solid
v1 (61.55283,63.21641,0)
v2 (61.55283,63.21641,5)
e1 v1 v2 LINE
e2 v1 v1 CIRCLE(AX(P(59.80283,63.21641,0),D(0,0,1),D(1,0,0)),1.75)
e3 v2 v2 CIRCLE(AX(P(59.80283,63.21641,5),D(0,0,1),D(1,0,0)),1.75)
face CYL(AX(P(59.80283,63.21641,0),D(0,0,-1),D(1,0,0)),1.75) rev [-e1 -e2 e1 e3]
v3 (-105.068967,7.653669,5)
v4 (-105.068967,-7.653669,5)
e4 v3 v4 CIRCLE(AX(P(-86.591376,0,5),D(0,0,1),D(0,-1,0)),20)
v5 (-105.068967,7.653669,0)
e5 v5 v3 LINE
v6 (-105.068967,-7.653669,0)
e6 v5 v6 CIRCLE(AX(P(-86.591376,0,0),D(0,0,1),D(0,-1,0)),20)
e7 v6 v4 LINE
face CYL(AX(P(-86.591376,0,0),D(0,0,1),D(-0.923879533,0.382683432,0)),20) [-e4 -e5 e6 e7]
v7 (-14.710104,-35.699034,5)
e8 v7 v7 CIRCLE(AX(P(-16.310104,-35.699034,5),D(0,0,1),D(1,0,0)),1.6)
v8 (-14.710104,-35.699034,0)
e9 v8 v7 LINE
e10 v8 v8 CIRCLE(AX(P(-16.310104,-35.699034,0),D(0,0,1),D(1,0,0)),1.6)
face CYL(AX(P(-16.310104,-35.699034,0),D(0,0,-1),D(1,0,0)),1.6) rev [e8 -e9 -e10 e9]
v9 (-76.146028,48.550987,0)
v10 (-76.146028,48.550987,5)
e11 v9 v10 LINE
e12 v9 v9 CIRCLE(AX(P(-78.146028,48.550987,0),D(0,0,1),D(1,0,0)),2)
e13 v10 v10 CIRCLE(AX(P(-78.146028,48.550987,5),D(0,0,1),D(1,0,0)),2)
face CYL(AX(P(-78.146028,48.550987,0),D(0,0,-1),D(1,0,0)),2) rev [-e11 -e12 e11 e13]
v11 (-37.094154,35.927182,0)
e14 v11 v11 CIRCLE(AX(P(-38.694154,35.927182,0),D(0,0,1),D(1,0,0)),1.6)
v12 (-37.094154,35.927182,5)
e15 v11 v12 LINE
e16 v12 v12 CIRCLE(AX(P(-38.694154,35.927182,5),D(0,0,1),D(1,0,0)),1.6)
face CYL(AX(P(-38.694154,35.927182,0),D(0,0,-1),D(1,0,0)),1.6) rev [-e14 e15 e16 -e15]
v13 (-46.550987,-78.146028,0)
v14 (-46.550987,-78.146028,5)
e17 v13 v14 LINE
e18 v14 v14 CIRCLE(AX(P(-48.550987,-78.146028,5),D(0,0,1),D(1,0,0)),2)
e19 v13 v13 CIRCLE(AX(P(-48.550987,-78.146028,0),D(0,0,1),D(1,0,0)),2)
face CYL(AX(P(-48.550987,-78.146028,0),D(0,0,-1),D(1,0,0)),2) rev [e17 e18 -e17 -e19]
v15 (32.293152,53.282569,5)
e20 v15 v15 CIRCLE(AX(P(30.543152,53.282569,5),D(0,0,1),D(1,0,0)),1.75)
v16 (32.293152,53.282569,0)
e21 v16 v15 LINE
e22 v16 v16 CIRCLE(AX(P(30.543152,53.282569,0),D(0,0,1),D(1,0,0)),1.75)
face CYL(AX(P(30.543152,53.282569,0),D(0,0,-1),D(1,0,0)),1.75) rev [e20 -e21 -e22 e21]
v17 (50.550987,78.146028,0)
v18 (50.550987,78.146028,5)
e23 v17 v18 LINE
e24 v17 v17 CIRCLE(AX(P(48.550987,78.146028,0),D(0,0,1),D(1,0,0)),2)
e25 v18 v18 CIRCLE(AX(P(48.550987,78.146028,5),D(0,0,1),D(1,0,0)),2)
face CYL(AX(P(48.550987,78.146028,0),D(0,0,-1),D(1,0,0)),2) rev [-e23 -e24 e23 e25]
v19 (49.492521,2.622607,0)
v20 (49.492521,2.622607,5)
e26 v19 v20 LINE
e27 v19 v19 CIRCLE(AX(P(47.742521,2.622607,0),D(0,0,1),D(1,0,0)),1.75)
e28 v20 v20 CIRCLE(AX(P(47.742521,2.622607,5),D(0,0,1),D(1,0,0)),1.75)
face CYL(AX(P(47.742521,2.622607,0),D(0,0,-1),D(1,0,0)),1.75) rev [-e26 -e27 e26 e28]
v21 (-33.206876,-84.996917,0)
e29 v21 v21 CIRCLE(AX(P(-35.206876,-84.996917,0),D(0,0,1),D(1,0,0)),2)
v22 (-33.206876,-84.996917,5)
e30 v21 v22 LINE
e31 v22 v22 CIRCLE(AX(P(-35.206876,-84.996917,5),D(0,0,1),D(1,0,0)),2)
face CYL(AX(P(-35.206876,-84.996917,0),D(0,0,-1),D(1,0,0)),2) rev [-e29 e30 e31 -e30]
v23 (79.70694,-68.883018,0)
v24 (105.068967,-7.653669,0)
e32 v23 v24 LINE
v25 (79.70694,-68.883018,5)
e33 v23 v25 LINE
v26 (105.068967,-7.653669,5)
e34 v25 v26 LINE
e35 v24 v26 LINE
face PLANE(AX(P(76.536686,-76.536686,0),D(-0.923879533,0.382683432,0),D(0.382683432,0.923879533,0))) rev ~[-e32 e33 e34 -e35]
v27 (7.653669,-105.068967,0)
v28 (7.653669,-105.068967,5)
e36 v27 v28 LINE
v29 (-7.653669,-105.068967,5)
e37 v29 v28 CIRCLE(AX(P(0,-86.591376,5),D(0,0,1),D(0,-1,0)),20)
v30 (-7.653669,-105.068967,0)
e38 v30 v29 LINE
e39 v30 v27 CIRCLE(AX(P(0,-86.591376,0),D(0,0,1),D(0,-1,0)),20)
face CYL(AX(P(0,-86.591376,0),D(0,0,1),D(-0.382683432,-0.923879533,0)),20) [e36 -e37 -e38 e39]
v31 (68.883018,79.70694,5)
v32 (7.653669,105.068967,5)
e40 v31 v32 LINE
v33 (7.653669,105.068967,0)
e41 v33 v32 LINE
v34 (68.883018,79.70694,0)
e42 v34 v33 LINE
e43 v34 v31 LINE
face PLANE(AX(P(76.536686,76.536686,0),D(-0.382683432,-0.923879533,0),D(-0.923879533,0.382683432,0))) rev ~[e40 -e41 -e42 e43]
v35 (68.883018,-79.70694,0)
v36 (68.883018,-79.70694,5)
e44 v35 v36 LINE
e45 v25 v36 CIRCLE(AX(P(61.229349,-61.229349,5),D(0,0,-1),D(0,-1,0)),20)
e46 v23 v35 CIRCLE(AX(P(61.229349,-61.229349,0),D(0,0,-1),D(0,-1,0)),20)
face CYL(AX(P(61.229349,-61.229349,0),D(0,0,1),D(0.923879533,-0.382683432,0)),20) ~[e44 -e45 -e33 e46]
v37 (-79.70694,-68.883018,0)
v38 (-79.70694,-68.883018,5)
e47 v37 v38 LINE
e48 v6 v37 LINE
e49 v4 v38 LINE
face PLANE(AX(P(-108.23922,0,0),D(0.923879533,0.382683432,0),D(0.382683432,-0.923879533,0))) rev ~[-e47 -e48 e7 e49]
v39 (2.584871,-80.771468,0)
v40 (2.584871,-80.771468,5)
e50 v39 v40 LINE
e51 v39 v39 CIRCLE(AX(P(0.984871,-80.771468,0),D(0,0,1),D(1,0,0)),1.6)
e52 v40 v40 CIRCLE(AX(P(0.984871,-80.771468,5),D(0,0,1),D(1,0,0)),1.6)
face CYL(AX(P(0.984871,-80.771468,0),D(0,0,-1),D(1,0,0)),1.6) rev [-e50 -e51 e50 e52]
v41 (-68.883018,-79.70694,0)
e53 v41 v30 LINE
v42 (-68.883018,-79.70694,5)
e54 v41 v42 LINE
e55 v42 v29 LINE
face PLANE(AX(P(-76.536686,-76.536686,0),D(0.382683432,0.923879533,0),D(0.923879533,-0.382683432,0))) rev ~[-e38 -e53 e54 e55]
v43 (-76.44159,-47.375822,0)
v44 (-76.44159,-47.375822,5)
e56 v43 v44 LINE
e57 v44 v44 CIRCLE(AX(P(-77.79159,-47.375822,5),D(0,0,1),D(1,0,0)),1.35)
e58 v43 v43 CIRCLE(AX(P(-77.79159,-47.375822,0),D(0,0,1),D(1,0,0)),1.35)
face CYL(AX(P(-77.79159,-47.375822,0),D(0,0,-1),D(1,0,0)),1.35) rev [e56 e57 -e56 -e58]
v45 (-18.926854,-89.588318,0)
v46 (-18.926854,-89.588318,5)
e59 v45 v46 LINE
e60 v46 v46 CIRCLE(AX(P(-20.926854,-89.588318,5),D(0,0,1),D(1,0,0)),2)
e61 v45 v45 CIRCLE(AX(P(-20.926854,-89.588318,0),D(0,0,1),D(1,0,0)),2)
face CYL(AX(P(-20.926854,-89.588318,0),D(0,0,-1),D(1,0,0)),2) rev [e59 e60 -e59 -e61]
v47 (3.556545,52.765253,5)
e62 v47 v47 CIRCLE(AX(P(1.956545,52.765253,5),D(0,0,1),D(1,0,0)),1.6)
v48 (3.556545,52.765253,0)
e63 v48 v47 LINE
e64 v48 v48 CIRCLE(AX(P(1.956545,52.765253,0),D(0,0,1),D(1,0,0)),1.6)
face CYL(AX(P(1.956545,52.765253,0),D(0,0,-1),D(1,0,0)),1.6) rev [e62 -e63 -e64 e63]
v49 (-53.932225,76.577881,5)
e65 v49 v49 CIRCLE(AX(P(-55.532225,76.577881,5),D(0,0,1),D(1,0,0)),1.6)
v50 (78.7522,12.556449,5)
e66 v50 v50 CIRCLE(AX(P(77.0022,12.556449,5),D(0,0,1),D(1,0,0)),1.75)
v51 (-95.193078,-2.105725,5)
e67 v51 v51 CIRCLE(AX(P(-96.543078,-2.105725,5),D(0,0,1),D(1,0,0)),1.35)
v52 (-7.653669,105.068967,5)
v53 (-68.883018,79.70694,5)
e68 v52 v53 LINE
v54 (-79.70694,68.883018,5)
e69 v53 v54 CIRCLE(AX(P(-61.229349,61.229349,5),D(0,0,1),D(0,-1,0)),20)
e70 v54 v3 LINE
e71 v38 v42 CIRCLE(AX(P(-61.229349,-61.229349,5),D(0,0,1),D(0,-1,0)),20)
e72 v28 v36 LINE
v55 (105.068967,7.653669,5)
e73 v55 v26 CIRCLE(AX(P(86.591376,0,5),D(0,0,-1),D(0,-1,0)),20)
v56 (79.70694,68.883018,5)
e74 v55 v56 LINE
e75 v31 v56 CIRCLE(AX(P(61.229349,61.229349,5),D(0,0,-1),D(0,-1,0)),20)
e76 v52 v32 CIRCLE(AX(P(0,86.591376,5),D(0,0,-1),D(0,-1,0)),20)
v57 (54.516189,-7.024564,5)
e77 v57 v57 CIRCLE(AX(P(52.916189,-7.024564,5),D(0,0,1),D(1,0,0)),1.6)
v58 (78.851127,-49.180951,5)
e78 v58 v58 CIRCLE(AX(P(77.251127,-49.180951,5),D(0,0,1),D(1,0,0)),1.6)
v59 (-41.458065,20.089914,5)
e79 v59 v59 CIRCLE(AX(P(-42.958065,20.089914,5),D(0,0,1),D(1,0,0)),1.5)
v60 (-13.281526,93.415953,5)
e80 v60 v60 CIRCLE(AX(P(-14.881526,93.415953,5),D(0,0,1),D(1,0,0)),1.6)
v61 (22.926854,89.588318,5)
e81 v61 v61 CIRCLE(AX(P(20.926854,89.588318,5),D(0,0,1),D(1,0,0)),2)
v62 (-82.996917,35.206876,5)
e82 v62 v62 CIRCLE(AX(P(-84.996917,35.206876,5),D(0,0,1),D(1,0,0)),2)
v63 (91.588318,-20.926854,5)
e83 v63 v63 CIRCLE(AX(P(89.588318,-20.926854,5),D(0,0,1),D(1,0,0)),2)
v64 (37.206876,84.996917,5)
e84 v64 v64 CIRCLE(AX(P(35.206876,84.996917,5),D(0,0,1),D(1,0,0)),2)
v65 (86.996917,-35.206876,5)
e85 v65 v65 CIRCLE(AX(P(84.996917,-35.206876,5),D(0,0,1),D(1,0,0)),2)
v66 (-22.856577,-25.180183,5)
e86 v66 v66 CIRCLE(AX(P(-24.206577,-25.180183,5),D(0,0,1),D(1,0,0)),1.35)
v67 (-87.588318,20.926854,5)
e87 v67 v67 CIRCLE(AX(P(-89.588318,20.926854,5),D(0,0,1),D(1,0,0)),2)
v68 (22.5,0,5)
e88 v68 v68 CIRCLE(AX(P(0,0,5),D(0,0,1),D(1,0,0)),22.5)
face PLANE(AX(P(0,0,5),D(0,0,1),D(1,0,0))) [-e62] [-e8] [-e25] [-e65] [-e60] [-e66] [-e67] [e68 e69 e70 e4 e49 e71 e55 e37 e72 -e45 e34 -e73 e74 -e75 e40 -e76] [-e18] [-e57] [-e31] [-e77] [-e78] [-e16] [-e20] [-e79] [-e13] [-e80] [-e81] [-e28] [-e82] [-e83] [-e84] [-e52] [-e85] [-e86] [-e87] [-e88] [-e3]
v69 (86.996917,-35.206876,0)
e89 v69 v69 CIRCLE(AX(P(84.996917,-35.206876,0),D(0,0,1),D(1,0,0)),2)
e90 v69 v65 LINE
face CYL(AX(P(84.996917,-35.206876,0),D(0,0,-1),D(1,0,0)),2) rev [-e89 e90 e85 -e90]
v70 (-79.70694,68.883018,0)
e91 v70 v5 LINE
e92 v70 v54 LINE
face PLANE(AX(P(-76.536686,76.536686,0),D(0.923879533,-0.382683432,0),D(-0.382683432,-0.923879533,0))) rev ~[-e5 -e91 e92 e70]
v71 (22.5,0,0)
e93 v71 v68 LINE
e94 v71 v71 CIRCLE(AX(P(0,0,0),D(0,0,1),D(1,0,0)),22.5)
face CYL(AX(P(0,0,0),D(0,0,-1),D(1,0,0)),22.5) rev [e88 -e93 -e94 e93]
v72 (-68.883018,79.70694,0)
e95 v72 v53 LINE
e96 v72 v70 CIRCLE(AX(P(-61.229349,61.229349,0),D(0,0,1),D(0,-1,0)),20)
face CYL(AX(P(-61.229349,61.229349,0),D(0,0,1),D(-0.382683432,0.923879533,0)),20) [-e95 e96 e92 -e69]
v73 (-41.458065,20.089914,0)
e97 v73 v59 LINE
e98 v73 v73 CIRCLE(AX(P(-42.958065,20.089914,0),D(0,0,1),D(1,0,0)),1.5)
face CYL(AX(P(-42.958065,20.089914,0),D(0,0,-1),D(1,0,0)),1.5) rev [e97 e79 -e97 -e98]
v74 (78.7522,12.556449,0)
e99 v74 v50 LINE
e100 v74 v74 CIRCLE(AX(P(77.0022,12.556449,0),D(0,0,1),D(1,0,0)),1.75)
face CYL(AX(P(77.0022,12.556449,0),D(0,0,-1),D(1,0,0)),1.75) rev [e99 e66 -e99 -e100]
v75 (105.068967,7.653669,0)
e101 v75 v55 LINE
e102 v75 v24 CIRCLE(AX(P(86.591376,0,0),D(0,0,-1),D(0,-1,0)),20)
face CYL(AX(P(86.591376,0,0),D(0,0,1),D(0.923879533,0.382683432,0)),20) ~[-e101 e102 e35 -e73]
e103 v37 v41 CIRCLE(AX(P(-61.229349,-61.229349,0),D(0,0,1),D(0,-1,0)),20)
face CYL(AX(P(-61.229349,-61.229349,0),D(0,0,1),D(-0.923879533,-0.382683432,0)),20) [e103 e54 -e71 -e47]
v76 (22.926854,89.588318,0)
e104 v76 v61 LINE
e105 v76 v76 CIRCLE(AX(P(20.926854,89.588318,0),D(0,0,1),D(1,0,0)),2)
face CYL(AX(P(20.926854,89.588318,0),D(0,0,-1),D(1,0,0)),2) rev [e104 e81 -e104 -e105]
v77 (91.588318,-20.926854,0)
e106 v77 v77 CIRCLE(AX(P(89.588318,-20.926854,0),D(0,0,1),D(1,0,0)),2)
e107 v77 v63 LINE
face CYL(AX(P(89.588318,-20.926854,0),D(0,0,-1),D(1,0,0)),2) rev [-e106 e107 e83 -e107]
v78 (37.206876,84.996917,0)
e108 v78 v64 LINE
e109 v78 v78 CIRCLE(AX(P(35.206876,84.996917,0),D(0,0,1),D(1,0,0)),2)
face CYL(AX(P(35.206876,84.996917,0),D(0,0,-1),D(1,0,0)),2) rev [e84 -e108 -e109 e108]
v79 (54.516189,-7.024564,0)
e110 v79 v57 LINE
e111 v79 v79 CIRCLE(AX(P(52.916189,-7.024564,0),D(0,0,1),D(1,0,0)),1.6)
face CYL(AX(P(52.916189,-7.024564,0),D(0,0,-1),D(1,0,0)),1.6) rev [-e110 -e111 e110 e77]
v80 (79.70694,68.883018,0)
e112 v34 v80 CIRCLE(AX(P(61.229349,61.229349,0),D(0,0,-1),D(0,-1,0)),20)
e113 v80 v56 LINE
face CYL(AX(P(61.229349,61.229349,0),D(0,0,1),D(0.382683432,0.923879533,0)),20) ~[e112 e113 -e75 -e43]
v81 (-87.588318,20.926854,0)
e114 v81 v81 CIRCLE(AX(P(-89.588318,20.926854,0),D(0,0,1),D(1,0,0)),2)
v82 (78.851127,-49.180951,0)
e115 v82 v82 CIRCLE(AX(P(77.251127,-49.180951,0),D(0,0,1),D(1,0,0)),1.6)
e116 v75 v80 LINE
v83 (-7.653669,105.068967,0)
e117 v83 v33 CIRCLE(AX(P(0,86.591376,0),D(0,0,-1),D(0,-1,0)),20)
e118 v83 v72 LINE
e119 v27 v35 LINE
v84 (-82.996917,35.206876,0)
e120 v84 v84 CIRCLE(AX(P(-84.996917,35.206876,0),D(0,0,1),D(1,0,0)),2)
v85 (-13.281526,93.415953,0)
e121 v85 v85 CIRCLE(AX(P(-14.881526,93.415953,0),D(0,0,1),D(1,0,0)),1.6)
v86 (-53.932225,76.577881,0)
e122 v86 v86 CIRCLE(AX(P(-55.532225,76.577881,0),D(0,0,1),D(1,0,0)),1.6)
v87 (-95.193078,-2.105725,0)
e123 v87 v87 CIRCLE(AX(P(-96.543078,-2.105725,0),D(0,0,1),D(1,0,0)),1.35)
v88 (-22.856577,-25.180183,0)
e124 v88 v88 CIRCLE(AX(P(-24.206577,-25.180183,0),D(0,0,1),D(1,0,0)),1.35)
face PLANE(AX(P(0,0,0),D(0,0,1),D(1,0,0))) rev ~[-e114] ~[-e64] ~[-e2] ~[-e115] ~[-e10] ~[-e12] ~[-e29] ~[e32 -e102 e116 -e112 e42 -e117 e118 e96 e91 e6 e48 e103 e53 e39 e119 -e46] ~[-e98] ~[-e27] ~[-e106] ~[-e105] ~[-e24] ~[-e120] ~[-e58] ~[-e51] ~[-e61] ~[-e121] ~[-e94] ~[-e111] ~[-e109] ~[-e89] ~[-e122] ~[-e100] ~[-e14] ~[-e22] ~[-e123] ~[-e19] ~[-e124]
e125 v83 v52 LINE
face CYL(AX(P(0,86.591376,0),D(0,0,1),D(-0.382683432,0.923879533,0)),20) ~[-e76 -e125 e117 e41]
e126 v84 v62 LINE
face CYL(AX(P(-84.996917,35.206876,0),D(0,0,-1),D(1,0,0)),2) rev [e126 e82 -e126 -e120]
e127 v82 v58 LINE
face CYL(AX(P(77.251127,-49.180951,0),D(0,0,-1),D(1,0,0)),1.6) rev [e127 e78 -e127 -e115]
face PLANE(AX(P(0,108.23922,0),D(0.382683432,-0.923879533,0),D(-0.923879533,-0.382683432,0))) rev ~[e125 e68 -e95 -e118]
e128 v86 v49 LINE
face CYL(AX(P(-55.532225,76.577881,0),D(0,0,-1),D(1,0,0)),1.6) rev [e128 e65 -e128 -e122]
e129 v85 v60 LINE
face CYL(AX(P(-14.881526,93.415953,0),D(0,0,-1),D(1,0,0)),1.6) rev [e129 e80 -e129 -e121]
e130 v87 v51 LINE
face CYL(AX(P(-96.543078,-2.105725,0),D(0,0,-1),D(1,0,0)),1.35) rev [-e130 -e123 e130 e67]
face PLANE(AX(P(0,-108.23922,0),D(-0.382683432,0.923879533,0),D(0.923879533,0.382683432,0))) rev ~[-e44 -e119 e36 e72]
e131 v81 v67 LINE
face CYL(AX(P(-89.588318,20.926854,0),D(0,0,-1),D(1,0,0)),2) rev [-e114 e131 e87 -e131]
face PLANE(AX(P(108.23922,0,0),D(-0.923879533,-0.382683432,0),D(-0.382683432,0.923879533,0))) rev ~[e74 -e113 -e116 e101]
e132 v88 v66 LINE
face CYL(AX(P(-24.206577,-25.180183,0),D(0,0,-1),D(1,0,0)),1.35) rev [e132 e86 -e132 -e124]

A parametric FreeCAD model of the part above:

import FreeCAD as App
import Part
import Sketcher

V = App.Vector
Q = App.Units.Quantity


def edges_at(feature, points):
    """Names of the edges that pass closest to the given points."""
    edges = feature.Shape.Edges
    near = lambda p: min(range(len(edges)), key=lambda i: edges[i].distToShape(Part.Vertex(*p))[0])
    return sorted({f"Edge{near(p) + 1}" for p in points})

doc = App.newDocument("Part")
body = doc.addObject("PartDesign::Body", "Body")

# Sketch on XY plane
sketch1 = body.newObject("Sketcher::SketchObject", "Sketch")
sketch1.AttachmentSupport = (doc.getObject("XY_Plane"), [""])
sketch1.MapMode = "FlatFace"
sketch1.addGeometry([
    Part.LineSegment(V(0, 108.2, 0), V(-76.5, 76.5, 0)),  # 0
    Part.LineSegment(V(-76.5, 76.5, 0), V(-108.2, 0, 0)),  # 1
    Part.LineSegment(V(-108.2, 0, 0), V(-76.5, -76.5, 0)),  # 2
    Part.LineSegment(V(-76.5, -76.5, 0), V(0, -108.2, 0)),  # 3
    Part.LineSegment(V(0, -108.2, 0), V(76.5, -76.5, 0)),  # 4
    Part.LineSegment(V(76.5, -76.5, 0), V(108.2, 0, 0)),  # 5
    Part.LineSegment(V(108.2, 0, 0), V(76.5, 76.5, 0)),  # 6
    Part.LineSegment(V(76.5, 76.5, 0), V(0, 108.2, 0)),  # 7
    Part.Circle(V(-77.8, -47.4, 0), V(0, 0, 1), 1.4),  # 8
    Part.Circle(V(-35.2, -85, 0), V(0, 0, 1), 2),  # 9
    Part.Circle(V(-48.6, -78.1, 0), V(0, 0, 1), 2),  # 10
    Part.Circle(V(-20.9, -89.6, 0), V(0, 0, 1), 2),  # 11
    Part.Circle(V(-96.5, -2.1, 0), V(0, 0, 1), 1.4),  # 12
    Part.Circle(V(-16.3, -35.7, 0), V(0, 0, 1), 1.6),  # 13
    Part.Circle(V(-24.2, -25.2, 0), V(0, 0, 1), 1.4),  # 14
    Part.Circle(V(1, -80.8, 0), V(0, 0, 1), 1.6),  # 15
    Part.Circle(V(77.3, -49.2, 0), V(0, 0, 1), 1.6),  # 16
    Part.Circle(V(0, 0, 0), V(0, 0, 1), 22.5),  # 17
    Part.Circle(V(85, -35.2, 0), V(0, 0, 1), 2),  # 18
    Part.Circle(V(52.9, -7, 0), V(0, 0, 1), 1.6),  # 19
    Part.Circle(V(89.6, -20.9, 0), V(0, 0, 1), 2),  # 20
    Part.Circle(V(-89.6, 20.9, 0), V(0, 0, 1), 2),  # 21
    Part.Circle(V(-85, 35.2, 0), V(0, 0, 1), 2),  # 22
    Part.Circle(V(-43, 20.1, 0), V(0, 0, 1), 1.5),  # 23
    Part.Circle(V(-38.7, 35.9, 0), V(0, 0, 1), 1.6),  # 24
    Part.Circle(V(-78.1, 48.6, 0), V(0, 0, 1), 2),  # 25
    Part.Circle(V(-55.5, 76.6, 0), V(0, 0, 1), 1.6),  # 26
    Part.Circle(V(-14.9, 93.4, 0), V(0, 0, 1), 1.6),  # 27
    Part.Circle(V(47.7, 2.6, 0), V(0, 0, 1), 1.8),  # 28
    Part.Circle(V(77, 12.6, 0), V(0, 0, 1), 1.8),  # 29
    Part.Circle(V(2, 52.8, 0), V(0, 0, 1), 1.6),  # 30
    Part.Circle(V(30.5, 53.3, 0), V(0, 0, 1), 1.8),  # 31
    Part.Circle(V(20.9, 89.6, 0), V(0, 0, 1), 2),  # 32
    Part.Circle(V(35.2, 85, 0), V(0, 0, 1), 2),  # 33
    Part.Circle(V(59.8, 63.2, 0), V(0, 0, 1), 1.8),  # 34
    Part.Circle(V(48.6, 78.1, 0), V(0, 0, 1), 2),  # 35
], False)
sketch1.addConstraint([
    Sketcher.Constraint("Coincident", 0, 2, 1, 1),
    Sketcher.Constraint("Coincident", 1, 2, 2, 1),
    Sketcher.Constraint("Coincident", 2, 2, 3, 1),
    Sketcher.Constraint("Coincident", 3, 2, 4, 1),
    Sketcher.Constraint("Coincident", 4, 2, 5, 1),
    Sketcher.Constraint("Coincident", 5, 2, 6, 1),
    Sketcher.Constraint("Coincident", 6, 2, 7, 1),
    Sketcher.Constraint("Coincident", 7, 2, 0, 1),
    Sketcher.Constraint("Coincident", 17, 3, -1, 1),
    Sketcher.Constraint("Equal", 9, 10),
    Sketcher.Constraint("Equal", 10, 11),
    Sketcher.Constraint("Equal", 8, 12),
    Sketcher.Constraint("Equal", 12, 14),
    Sketcher.Constraint("Equal", 13, 15),
    Sketcher.Constraint("Equal", 15, 16),
    Sketcher.Constraint("Equal", 11, 18),
    Sketcher.Constraint("Equal", 16, 19),
    Sketcher.Constraint("Equal", 18, 20),
    Sketcher.Constraint("Equal", 20, 21),
    Sketcher.Constraint("Equal", 21, 22),
    Sketcher.Constraint("Equal", 19, 24),
    Sketcher.Constraint("Equal", 22, 25),
    Sketcher.Constraint("Equal", 24, 26),
    Sketcher.Constraint("Equal", 26, 27),
    Sketcher.Constraint("Equal", 28, 29),
    Sketcher.Constraint("Equal", 27, 30),
    Sketcher.Constraint("Equal", 29, 31),
    Sketcher.Constraint("Equal", 25, 32),
    Sketcher.Constraint("Equal", 32, 33),
    Sketcher.Constraint("Equal", 31, 34),
    Sketcher.Constraint("Equal", 33, 35),
    Sketcher.Constraint("Symmetric", 20, 3, 21, 3, -1, 1),
    Sketcher.Constraint("Symmetric", 18, 3, 22, 3, -1, 1),
    Sketcher.Constraint("Symmetric", 11, 3, 32, 3, -1, 1),
    Sketcher.Constraint("Symmetric", 9, 3, 33, 3, -1, 1),
    Sketcher.Constraint("Symmetric", 10, 3, 35, 3, -1, 1),
    Sketcher.Constraint("Symmetric", 0, 2, 4, 2, -1, 1),
    Sketcher.Constraint("Symmetric", 1, 2, 5, 2, -1, 1),
    Sketcher.Constraint("Symmetric", 2, 2, 6, 2, -1, 1),
    Sketcher.Constraint("Symmetric", 3, 2, 7, 2, -1, 1),
    Sketcher.Constraint("Symmetric", 2, 2, 4, 2, -2),
    Sketcher.Constraint("PointOnObject", 1, 2, -1),
    Sketcher.Constraint("PointOnObject", 3, 2, -2),
    Sketcher.Constraint("Perpendicular", 0, 2),
    Sketcher.Constraint("Equal", 0, 1),
    Sketcher.Constraint("Diameter", 9, Q("4 mm")),
    Sketcher.Constraint("Diameter", 17, Q("45 mm")),
    Sketcher.Constraint("Diameter", 23, Q("3 mm")),
    Sketcher.Constraint("Diameter", 8, Q("2.7 mm")),
    Sketcher.Constraint("Diameter", 13, Q("3.2 mm")),
    Sketcher.Constraint("Diameter", 28, Q("3.5 mm")),
    Sketcher.Constraint("Angle", 0, Q("-157.5 deg")),
    Sketcher.Constraint("DistanceX", -1, 1, 29, 3, Q("77.0022 mm")),
    Sketcher.Constraint("DistanceY", 11, 3, 9, 3, Q("4.591401 mm")),
    Sketcher.Constraint("DistanceX", 9, 3, 14, 3, Q("11.000299 mm")),
    Sketcher.Constraint("DistanceX", 18, 3, 20, 3, Q("4.591401 mm")),
    Sketcher.Constraint("DistanceY", 12, 3, 22, 3, Q("37.312601 mm")),
    Sketcher.Constraint("DistanceY", 8, 3, 22, 3, Q("82.582698 mm")),
    Sketcher.Constraint("DistanceY", 24, 3, 26, 3, Q("40.650699 mm")),
    Sketcher.Constraint("DistanceX", 26, 3, 27, 3, Q("40.650699 mm")),
    Sketcher.Constraint("DistanceX", 25, 3, 27, 3, Q("63.264502 mm")),
    Sketcher.Constraint("DistanceY", 16, 3, 29, 3, Q("61.7374 mm")),
    Sketcher.Constraint("DistanceY", 30, 3, 27, 3, Q("40.650699 mm")),
    Sketcher.Constraint("DistanceX", 24, 3, 30, 3, Q("40.650699 mm")),
    Sketcher.Constraint("DistanceX", 32, 3, 31, 3, Q("9.616298 mm")),
    Sketcher.Constraint("DistanceX", 27, 3, 33, 3, Q("50.088402 mm")),
    Sketcher.Constraint("DistanceY", 25, 3, 0, 2, Q("27.985699 mm")),
    Sketcher.Constraint("DistanceX", 1, 2, 21, 3, Q("18.650902 mm")),
    Sketcher.Constraint("DistanceX", 2, 2, 10, 3, Q("27.985699 mm")),
    Sketcher.Constraint("DistanceY", 3, 2, 11, 3, Q("18.650902 mm")),
    Sketcher.Constraint("DistanceX", 8, 3, -1, 1, Q("77.79159 mm")),
    Sketcher.Constraint("DistanceY", 11, 3, -1, 1, Q("89.588318 mm")),
    Sketcher.Constraint("DistanceX", 12, 3, -1, 1, Q("96.543078 mm")),
    Sketcher.Constraint("DistanceX", -1, 1, 15, 3, Q("0.984871 mm")),
    Sketcher.Constraint("DistanceY", 16, 3, -1, 1, Q("49.180951 mm")),
    Sketcher.Constraint("DistanceX", -1, 1, 19, 3, Q("52.916189 mm")),
    Sketcher.Constraint("DistanceY", -1, 1, 26, 3, Q("76.577881 mm")),
    Sketcher.Constraint("DistanceX", -1, 1, 28, 3, Q("47.742521 mm")),
    Sketcher.Constraint("DistanceX", -1, 1, 31, 3, Q("30.543152 mm")),
    Sketcher.Constraint("DistanceY", -1, 1, 31, 3, Q("53.282569 mm")),
    Sketcher.Constraint("DistanceX", -1, 1, 34, 3, Q("59.80283 mm")),
    Sketcher.Constraint("DistanceY", -1, 1, 34, 3, Q("63.21641 mm")),
    Sketcher.Constraint("DistanceX", 10, 3, 9, 3, Q("13.344112 mm")),
    Sketcher.Constraint("DistanceY", 9, 3, 10, 3, Q("6.850889 mm")),
    Sketcher.Constraint("DistanceY", 9, 3, 12, 3, Q("82.891192 mm")),
    Sketcher.Constraint("DistanceX", 9, 3, 13, 3, Q("18.896772 mm")),
    Sketcher.Constraint("DistanceY", 8, 3, 13, 3, Q("11.676789 mm")),
    Sketcher.Constraint("DistanceY", 13, 3, 14, 3, Q("10.51885 mm")),
    Sketcher.Constraint("DistanceY", 11, 3, 15, 3, Q("8.816851 mm")),
    Sketcher.Constraint("DistanceX", 13, 3, 16, 3, Q("93.561231 mm")),
    Sketcher.Constraint("DistanceY", 18, 3, 19, 3, Q("28.182312 mm")),
    Sketcher.Constraint("DistanceY", 20, 3, 19, 3, Q("13.902289 mm")),
    Sketcher.Constraint("DistanceX", 22, 3, 23, 3, Q("42.038852 mm")),
    Sketcher.Constraint("DistanceY", 23, 3, 22, 3, Q("15.116962 mm")),
    Sketcher.Constraint("DistanceX", 23, 3, 24, 3, Q("4.263911 mm")),
    Sketcher.Constraint("DistanceY", 26, 3, 27, 3, Q("16.838071 mm")),
    Sketcher.Constraint("DistanceY", 19, 3, 28, 3, Q("9.647172 mm")),
])
pad1 = body.newObject("PartDesign::Pad", "Pad")
pad1.Profile = sketch1
pad1.Length = 5
doc.recompute()

fillet = body.newObject("PartDesign::Fillet", "Fillet")
fillet.Base = (pad1, edges_at(pad1, [
    (76.537, 76.537, 2.5),
    (108.239, 0, 2.5),
    (76.537, -76.537, 2.5),
    (0, -108.239, 2.5),
    (-76.537, -76.537, 2.5),
    (-108.239, 0, 2.5),
    (-76.537, 76.537, 2.5),
    (0, 108.239, 2.5),
]))
fillet.Radius = 20

doc.recompute()
